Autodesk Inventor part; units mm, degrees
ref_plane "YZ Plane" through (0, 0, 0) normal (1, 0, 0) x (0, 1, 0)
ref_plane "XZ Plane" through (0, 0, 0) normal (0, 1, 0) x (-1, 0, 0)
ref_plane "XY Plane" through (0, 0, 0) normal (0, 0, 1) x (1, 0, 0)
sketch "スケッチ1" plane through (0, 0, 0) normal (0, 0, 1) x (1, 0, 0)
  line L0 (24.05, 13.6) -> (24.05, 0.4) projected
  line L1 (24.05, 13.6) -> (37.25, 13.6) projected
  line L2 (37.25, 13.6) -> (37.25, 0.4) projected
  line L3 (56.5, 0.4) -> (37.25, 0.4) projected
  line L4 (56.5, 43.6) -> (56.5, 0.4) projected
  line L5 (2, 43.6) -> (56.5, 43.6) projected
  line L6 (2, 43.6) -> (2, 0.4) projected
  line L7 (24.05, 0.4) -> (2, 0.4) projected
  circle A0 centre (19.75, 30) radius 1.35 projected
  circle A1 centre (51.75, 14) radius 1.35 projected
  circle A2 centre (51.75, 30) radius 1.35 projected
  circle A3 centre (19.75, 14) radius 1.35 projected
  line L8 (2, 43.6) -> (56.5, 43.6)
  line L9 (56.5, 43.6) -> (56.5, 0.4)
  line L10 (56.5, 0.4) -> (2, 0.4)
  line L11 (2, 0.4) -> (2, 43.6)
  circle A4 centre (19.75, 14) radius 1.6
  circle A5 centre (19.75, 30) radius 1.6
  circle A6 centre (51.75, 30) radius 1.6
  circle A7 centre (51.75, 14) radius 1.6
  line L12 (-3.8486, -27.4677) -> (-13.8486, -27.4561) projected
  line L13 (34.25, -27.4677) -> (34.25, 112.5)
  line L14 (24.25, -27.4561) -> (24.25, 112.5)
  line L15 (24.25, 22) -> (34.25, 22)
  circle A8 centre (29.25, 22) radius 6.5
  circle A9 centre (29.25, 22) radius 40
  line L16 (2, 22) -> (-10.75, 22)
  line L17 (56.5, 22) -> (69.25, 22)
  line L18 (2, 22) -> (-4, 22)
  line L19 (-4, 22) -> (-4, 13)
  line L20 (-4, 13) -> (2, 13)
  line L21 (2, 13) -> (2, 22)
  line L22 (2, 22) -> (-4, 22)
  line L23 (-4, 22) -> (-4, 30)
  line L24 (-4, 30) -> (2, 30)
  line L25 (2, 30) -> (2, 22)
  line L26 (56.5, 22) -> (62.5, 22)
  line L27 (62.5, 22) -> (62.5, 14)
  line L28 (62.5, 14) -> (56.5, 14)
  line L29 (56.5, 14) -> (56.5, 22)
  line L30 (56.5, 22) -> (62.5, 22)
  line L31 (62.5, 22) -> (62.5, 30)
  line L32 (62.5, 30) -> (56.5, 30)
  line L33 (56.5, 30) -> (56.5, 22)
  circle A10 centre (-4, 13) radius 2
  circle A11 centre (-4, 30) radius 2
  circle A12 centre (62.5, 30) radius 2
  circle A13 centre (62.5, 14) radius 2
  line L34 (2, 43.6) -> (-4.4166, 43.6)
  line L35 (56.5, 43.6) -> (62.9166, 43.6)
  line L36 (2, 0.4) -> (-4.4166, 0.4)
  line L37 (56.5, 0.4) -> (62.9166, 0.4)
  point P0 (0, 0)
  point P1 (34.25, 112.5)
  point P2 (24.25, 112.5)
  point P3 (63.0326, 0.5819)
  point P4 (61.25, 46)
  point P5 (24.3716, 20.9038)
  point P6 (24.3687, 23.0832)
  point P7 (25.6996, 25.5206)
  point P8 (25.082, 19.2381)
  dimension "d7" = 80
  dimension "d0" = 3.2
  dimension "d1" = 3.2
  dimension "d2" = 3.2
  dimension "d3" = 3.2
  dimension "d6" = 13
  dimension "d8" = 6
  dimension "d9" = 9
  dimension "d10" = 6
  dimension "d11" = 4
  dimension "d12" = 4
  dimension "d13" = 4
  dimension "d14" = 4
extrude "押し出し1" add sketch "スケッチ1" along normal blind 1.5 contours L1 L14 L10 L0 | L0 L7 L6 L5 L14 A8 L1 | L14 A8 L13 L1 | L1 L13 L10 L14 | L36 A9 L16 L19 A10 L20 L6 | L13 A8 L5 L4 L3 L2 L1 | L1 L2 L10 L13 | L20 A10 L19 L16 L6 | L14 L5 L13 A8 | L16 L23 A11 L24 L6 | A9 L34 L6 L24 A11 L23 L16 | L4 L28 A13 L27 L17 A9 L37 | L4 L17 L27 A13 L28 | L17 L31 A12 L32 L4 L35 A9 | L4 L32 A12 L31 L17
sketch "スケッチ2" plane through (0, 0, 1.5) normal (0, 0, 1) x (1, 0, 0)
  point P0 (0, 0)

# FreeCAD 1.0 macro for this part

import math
import FreeCAD as App
import Part
import Sketcher
from FreeCAD import Vector

doc = App.newDocument("Part")
body = doc.addObject("PartDesign::Body", "Body")

sketch1 = doc.addObject("Sketcher::SketchObject", "Sketch")
body.addObject(sketch1)
sketch1.AttachmentSupport = (doc.XY_Plane, [""])
sketch1.MapMode = "FlatFace"
sketch1.addGeometry([
    Part.ArcOfCircle(Part.Circle(Vector(29.25, 22, 0), Vector(0, 0, 1), 40), math.radians(-32.683639), math.radians(32.683639)),
    Part.LineSegment(Vector(62.9166, 43.6, 0), Vector(-4.4166, 43.6, 0)),
    Part.ArcOfCircle(Part.Circle(Vector(29.25, 22, 0), Vector(0, 0, 1), 40), math.radians(147.316361), math.radians(212.683639)),
    Part.LineSegment(Vector(-4.4166, 0.4, 0), Vector(62.9166, 0.4, 0)),
    Part.Circle(Vector(19.75, 14, 0), Vector(0, 0, 1), 1.6),
    Part.Circle(Vector(29.25, 22, 0), Vector(0, 0, 1), 6.5),
    Part.Circle(Vector(19.75, 30, 0), Vector(0, 0, 1), 1.6),
    Part.Circle(Vector(-4, 13, 0), Vector(0, 0, 1), 2),
    Part.Circle(Vector(-4, 30, 0), Vector(0, 0, 1), 2),
    Part.Circle(Vector(51.75, 14, 0), Vector(0, 0, 1), 1.6),
    Part.Circle(Vector(51.75, 30, 0), Vector(0, 0, 1), 1.6),
    Part.Circle(Vector(62.5, 30, 0), Vector(0, 0, 1), 2),
    Part.Circle(Vector(62.5, 14, 0), Vector(0, 0, 1), 2),
], False)
sketch1.addConstraint([
    Sketcher.Constraint("Coincident", 0, 2, 1, 1),
    Sketcher.Constraint("Coincident", 1, 2, 2, 1),
    Sketcher.Constraint("Coincident", 2, 2, 3, 1),
    Sketcher.Constraint("Coincident", 3, 2, 0, 1),
    Sketcher.Constraint("Horizontal", 1),
    Sketcher.Constraint("Horizontal", 3),
    Sketcher.Constraint("Coincident", 2, 3, 0, 3),
    Sketcher.Constraint("Coincident", 5, 3, 0, 3),
    Sketcher.Constraint("Equal", 0, 2),
    Sketcher.Constraint("Equal", 4, 6),
    Sketcher.Constraint("Equal", 7, 8),
    Sketcher.Constraint("Equal", 6, 9),
    Sketcher.Constraint("Equal", 9, 10),
    Sketcher.Constraint("Equal", 8, 11),
    Sketcher.Constraint("Equal", 11, 12),
    Sketcher.Constraint("Horizontal", 6, 3, 8, 3),
    Sketcher.Constraint("Horizontal", 4, 3, 9, 3),
    Sketcher.Constraint("Horizontal", 8, 3, 10, 3),
    Sketcher.Constraint("Horizontal", 10, 3, 11, 3),
    Sketcher.Constraint("Horizontal", 9, 3, 12, 3),
    Sketcher.Constraint("Vertical", 4, 3, 6, 3),
    Sketcher.Constraint("Vertical", 7, 3, 8, 3),
    Sketcher.Constraint("Vertical", 9, 3, 10, 3),
    Sketcher.Constraint("Vertical", 11, 3, 12, 3),
    Sketcher.Constraint("Vertical", 1, 2, 2, 2),
    Sketcher.Constraint("Diameter", 5, 13.0),
    Sketcher.Constraint("Diameter", 7, 4.0),
    Sketcher.Constraint("Radius", 0, 40.0),
    Sketcher.Constraint("Diameter", 4, 3.2),
    Sketcher.Constraint("DistanceX", 7, 3, -1, 1, 4.0),
    Sketcher.Constraint("DistanceY", -1, 1, 7, 3, 13.0),
    Sketcher.Constraint("DistanceY", 7, 3, 0, 3, 9.0),
    Sketcher.Constraint("DistanceY", -1, 1, 4, 3, 14.0),
    Sketcher.Constraint("DistanceY", -1, 1, 6, 3, 30.0),
    Sketcher.Constraint("DistanceX", 4, 3, 9, 3, 32.0),
    Sketcher.Constraint("DistanceX", -1, 1, 11, 3, 62.5),
    Sketcher.Constraint("DistanceY", -1, 1, 0, 2, 43.6),
    Sketcher.Constraint("DistanceX", 4, 3, 0, 3, 9.5),
    Sketcher.Constraint("DistanceX", -1, 1, 0, 3, 29.25),
])
pad1 = doc.addObject("PartDesign::Pad", "Pad")
body.addObject(pad1)
pad1.Profile = sketch1
pad1.Length = 1.5

doc.recompute()
